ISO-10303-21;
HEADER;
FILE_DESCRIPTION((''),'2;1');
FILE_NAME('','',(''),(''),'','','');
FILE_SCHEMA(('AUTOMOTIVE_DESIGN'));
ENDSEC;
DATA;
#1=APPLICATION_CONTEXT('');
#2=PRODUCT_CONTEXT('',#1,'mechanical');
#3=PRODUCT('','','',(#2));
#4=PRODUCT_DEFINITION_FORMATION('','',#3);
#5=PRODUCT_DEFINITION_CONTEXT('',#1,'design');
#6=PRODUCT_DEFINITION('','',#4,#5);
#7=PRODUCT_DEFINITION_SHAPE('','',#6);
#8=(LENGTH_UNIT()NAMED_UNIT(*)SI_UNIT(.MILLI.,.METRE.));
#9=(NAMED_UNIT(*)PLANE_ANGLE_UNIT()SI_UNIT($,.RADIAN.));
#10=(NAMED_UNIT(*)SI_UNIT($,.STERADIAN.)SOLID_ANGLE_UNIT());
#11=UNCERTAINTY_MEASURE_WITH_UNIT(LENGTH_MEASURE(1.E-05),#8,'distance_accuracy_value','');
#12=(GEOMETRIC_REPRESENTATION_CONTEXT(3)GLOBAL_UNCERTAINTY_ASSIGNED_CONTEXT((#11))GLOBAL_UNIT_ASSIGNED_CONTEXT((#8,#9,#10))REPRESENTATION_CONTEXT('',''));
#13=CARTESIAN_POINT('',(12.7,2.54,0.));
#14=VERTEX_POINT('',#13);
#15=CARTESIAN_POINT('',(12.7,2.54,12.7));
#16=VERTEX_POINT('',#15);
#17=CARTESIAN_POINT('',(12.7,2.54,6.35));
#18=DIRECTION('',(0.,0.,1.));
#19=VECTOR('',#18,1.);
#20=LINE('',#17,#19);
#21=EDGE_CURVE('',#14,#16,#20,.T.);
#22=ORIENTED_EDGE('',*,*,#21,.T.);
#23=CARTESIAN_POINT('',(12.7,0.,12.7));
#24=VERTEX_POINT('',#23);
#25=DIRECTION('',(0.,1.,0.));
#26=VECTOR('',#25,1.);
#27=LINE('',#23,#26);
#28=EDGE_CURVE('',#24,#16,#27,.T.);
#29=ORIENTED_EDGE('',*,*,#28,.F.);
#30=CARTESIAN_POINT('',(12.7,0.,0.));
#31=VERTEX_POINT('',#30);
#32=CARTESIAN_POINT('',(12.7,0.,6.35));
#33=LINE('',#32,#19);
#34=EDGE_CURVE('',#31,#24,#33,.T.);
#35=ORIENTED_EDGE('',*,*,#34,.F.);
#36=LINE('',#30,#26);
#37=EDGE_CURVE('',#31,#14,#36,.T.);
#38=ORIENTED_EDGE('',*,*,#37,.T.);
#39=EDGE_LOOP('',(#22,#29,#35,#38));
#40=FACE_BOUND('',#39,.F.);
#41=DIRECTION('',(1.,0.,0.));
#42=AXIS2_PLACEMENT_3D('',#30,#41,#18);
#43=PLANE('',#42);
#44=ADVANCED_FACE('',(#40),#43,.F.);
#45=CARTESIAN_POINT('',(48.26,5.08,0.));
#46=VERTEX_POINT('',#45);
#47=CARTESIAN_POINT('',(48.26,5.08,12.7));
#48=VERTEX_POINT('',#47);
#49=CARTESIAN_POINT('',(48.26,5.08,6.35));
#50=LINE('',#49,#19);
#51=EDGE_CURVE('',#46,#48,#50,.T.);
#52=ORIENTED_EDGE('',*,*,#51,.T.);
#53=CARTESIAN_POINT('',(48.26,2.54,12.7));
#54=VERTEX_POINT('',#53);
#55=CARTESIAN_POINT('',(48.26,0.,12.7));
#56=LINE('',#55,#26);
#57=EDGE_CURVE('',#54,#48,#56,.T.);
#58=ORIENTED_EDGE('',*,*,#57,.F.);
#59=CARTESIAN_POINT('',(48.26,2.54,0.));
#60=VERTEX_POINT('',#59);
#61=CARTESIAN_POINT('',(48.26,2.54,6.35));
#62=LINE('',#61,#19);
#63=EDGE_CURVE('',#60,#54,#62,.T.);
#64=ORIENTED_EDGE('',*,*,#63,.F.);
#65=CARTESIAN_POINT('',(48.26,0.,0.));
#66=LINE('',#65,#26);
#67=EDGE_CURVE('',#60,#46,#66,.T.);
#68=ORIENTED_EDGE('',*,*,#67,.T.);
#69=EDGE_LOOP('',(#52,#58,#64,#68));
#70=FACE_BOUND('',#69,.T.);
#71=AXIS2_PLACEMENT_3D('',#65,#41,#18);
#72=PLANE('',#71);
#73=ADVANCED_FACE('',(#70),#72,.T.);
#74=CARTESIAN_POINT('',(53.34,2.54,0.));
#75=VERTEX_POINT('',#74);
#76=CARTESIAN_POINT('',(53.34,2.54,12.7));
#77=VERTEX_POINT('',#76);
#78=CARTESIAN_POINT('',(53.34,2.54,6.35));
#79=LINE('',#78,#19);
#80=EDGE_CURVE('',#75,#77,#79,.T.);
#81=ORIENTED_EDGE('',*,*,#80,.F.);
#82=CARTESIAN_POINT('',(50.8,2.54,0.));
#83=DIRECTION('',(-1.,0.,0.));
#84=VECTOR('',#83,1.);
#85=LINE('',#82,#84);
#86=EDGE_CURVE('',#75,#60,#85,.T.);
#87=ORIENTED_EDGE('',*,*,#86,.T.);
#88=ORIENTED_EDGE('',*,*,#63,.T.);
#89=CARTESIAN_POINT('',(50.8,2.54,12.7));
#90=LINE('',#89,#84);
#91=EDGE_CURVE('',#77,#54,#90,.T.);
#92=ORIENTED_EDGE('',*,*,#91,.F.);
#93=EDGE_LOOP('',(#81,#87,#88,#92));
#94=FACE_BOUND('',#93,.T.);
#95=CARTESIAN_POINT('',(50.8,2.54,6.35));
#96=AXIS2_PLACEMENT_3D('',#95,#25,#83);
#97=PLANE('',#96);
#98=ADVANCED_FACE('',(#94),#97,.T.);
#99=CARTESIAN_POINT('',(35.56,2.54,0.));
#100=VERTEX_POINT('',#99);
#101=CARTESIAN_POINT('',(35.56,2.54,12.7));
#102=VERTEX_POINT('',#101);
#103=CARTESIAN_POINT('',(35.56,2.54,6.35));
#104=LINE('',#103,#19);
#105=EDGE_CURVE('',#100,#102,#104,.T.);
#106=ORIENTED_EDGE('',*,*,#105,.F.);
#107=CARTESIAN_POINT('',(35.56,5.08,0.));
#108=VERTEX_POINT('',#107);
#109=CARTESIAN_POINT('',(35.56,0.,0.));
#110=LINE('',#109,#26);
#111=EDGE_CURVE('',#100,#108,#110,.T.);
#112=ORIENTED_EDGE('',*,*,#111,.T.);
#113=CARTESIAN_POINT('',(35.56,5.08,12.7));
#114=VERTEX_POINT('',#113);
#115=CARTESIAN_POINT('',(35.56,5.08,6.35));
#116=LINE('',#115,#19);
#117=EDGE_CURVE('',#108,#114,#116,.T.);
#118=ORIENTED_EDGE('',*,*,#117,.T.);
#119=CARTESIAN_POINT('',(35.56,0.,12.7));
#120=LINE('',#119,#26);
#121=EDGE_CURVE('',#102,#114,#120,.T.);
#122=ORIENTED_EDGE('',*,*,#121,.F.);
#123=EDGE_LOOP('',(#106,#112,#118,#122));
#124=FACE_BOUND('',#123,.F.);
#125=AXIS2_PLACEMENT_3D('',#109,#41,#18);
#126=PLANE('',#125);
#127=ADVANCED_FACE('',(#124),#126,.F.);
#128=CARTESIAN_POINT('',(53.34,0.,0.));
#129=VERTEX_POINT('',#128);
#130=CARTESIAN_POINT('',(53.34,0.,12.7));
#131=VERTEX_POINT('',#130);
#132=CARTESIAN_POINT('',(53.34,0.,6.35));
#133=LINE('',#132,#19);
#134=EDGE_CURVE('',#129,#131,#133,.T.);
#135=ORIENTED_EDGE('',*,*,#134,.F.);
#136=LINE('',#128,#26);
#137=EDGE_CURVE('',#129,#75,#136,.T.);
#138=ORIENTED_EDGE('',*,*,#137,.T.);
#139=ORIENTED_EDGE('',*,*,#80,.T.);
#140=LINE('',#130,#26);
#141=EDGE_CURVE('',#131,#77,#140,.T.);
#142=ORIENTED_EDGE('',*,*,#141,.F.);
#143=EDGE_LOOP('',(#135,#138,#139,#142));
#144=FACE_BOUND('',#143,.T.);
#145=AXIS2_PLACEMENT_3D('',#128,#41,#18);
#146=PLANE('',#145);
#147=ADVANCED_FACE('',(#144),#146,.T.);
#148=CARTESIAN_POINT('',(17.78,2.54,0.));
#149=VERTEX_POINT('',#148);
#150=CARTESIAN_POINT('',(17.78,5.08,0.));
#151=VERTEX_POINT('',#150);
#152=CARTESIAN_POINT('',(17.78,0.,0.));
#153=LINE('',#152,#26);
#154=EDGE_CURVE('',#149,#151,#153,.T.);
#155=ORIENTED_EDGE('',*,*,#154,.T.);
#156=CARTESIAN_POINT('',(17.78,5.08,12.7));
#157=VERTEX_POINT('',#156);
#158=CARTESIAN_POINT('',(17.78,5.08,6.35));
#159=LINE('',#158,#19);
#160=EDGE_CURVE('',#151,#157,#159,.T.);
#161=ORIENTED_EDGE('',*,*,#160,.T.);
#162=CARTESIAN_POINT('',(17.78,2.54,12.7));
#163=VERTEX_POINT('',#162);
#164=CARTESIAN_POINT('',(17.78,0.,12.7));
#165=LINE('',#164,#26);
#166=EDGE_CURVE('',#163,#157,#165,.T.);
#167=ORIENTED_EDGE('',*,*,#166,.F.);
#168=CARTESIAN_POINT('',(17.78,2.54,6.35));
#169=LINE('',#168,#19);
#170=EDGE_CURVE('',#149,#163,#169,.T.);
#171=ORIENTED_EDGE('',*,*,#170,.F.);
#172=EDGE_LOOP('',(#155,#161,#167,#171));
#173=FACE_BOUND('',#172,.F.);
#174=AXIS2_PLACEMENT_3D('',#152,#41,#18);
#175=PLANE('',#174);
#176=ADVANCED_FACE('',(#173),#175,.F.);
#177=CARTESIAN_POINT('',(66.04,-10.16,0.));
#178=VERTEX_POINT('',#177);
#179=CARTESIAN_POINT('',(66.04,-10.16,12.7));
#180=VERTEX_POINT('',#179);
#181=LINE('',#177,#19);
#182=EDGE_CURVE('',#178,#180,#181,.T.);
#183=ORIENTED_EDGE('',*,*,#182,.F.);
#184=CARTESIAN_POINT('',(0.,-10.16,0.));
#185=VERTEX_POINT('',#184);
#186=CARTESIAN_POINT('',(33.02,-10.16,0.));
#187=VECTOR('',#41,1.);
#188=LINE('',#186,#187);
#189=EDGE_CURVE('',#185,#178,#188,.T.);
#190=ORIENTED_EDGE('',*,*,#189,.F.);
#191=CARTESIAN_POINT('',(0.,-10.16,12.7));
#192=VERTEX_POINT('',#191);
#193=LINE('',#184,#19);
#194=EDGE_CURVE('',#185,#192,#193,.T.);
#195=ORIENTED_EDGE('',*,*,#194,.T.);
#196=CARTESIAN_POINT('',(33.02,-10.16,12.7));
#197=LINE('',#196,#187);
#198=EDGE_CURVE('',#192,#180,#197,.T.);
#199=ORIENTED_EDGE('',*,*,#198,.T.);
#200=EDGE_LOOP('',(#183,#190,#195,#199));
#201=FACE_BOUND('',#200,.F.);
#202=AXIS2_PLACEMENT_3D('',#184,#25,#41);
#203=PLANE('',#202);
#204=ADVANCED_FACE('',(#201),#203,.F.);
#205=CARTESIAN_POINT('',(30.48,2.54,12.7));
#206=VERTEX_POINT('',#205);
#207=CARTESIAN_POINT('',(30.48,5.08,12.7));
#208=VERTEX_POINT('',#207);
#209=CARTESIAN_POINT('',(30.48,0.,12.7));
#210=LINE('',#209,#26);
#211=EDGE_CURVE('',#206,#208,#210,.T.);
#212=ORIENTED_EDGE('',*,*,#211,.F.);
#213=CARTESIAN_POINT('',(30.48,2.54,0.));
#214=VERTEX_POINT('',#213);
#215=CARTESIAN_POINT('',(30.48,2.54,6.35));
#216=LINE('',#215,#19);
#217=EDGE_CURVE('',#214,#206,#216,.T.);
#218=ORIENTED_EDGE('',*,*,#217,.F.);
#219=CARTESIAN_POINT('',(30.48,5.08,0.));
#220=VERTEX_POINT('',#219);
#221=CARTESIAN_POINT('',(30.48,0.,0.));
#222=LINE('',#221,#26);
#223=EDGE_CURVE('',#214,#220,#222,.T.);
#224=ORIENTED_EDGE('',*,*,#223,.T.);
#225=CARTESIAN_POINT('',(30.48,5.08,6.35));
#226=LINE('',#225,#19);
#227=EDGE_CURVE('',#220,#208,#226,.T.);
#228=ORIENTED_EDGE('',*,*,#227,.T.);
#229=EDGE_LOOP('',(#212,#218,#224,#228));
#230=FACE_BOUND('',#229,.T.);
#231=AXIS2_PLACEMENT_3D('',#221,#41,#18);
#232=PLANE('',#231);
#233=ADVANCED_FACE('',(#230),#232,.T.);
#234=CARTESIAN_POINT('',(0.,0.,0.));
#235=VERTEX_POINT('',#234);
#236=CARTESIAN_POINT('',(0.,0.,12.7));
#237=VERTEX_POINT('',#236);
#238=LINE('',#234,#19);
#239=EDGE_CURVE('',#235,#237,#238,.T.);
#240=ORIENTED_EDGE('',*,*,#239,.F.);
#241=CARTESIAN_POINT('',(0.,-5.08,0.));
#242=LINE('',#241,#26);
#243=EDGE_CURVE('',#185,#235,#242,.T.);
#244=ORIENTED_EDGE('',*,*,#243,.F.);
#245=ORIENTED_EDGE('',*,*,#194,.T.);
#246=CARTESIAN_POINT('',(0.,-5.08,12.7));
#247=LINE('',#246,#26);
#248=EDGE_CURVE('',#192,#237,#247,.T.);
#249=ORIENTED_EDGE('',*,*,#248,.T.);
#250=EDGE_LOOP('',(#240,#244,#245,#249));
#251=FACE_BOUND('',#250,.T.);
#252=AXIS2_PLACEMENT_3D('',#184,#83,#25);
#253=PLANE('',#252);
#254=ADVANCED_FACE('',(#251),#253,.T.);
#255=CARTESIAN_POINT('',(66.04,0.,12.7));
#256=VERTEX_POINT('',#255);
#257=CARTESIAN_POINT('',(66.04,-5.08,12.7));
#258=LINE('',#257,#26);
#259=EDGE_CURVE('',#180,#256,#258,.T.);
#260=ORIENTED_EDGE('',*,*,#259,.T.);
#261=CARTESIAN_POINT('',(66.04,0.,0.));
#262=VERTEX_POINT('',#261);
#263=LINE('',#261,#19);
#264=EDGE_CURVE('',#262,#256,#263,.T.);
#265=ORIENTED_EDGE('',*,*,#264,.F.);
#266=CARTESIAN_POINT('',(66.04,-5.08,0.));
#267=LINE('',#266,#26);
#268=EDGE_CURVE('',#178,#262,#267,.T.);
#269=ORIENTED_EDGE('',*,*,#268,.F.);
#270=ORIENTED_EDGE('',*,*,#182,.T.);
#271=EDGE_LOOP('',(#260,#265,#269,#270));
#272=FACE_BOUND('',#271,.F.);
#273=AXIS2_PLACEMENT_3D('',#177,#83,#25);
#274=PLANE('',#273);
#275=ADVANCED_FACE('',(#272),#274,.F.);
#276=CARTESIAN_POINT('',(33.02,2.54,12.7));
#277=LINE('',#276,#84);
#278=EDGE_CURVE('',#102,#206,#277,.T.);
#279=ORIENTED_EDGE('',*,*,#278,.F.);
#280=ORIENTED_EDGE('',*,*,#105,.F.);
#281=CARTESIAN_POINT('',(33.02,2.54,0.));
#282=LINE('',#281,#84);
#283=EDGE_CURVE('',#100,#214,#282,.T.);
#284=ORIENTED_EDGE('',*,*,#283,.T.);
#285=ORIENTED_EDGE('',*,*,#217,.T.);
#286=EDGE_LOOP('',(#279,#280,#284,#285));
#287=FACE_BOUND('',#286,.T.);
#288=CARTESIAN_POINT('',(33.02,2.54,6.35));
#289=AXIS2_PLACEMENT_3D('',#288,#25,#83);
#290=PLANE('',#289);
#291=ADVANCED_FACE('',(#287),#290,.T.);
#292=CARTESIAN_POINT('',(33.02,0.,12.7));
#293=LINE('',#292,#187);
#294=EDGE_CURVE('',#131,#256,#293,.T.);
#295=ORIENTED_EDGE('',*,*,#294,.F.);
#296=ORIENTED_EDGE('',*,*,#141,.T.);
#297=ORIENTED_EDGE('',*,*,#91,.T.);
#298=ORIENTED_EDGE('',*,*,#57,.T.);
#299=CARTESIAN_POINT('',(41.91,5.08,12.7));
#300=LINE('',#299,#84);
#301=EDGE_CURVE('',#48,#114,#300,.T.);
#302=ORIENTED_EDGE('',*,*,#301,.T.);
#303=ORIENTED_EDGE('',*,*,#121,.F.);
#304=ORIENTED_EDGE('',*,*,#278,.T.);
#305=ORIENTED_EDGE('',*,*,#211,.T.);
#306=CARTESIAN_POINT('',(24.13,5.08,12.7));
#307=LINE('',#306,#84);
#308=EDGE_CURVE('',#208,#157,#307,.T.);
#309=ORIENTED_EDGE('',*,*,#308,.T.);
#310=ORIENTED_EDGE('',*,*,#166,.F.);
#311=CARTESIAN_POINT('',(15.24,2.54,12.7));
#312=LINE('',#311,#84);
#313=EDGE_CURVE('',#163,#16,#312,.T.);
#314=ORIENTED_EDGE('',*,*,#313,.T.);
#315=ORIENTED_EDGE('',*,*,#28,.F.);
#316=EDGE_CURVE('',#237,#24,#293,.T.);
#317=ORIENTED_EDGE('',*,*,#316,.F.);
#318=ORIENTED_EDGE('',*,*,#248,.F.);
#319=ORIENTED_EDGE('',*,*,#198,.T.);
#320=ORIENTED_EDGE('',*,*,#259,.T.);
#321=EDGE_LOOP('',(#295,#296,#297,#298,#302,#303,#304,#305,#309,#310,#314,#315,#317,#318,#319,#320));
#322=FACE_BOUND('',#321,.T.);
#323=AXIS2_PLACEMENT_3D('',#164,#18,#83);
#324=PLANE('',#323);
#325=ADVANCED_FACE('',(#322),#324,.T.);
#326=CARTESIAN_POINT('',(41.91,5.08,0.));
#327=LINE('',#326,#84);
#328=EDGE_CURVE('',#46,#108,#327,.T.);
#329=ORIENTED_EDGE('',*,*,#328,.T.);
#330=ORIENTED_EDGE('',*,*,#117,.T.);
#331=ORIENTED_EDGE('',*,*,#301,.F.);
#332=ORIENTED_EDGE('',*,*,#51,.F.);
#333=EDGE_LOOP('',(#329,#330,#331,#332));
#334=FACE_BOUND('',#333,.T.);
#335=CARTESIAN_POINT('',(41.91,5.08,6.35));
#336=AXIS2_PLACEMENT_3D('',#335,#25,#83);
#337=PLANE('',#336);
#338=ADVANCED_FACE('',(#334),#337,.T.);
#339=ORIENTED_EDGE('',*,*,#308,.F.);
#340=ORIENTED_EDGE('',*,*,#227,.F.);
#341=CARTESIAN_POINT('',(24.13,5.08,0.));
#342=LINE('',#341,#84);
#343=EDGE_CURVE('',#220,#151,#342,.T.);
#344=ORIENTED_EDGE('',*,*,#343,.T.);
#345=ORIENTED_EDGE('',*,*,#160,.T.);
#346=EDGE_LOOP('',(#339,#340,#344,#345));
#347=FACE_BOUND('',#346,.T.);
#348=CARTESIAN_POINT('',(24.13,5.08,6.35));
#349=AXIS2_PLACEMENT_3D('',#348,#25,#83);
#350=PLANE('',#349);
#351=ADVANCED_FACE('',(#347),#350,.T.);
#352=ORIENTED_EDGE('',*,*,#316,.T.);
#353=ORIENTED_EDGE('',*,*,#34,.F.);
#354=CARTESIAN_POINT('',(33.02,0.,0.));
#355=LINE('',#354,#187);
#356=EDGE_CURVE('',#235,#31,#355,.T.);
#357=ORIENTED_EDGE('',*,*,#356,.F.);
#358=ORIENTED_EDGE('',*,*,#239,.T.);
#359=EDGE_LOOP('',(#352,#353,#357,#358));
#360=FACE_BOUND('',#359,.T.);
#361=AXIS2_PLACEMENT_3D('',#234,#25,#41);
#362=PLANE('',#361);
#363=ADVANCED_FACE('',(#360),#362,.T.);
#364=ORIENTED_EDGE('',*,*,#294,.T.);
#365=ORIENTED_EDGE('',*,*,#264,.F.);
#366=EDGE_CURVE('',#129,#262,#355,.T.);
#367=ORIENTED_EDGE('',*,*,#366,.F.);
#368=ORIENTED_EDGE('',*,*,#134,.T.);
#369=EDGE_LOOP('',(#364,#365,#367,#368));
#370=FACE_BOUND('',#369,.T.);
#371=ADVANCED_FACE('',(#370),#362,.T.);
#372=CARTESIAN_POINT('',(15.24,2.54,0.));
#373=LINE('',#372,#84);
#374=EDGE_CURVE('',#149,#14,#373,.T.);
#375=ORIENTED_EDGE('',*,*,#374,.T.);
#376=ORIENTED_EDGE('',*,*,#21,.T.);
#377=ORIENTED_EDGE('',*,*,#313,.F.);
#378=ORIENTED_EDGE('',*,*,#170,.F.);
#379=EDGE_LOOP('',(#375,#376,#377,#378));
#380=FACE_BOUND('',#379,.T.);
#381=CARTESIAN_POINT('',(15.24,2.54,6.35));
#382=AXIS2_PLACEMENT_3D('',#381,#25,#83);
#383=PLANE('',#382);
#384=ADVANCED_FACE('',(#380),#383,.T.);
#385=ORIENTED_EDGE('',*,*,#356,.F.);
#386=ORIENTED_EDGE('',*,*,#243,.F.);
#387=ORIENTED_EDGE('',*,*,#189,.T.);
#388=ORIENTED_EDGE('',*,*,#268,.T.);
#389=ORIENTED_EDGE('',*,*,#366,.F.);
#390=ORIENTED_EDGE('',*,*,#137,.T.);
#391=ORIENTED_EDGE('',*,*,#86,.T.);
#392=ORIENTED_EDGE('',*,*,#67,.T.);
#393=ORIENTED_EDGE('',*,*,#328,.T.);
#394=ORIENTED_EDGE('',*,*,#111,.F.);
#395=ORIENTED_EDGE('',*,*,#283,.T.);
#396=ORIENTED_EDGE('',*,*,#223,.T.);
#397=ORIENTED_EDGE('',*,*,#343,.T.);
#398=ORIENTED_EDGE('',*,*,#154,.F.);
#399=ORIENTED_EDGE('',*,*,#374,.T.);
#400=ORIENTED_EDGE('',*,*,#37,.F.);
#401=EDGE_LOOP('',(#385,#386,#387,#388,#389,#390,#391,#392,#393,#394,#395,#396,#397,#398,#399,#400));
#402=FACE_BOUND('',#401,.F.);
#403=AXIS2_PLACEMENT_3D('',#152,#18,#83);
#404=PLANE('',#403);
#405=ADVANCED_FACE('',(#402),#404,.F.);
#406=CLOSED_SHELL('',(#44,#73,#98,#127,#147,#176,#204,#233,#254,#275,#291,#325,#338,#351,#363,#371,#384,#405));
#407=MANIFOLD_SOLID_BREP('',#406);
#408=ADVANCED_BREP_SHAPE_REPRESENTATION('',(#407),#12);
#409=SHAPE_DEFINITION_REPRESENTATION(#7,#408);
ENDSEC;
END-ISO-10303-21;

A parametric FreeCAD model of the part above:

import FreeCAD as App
import Part
import Sketcher
Q = App.Units.Quantity


def add_polygon(sketch, points):
    """Adds a closed chain of lines whose ends are joined by coincident constraints."""
    first, n = sketch.GeometryCount, len(points)
    for a, b in zip(points, points[1:] + points[:1]):
        sketch.addGeometry(Part.LineSegment(App.Vector(*a, 0), App.Vector(*b, 0)), False)
    for i in range(n):
        sketch.addConstraint(Sketcher.Constraint("Coincident", first + i, 2, first + (i + 1) % n, 1))

doc = App.newDocument("Part")
body = doc.addObject("PartDesign::Body", "Body")

sketch1 = body.newObject("Sketcher::SketchObject", "Sketch")
sketch1.AttachmentSupport = (doc.getObject("XY_Plane"), [""])
sketch1.MapMode = "FlatFace"
add_polygon(sketch1, [(0, 0), (0, -10), (66, -10), (66, 0)])
sketch1.addConstraint([
    Sketcher.Constraint("Vertical", 0),
    Sketcher.Constraint("Horizontal", 1),
    Sketcher.Constraint("Vertical", 2),
    Sketcher.Constraint("Horizontal", 3),
    Sketcher.Constraint("Coincident", 3, 2, -1, 1),
    Sketcher.Constraint("DistanceX", 1, 1, 1, 2, Q("2.6 in")),
    Sketcher.Constraint("DistanceY", 0, 2, 0, 1, Q("0.4 in")),
])
pad1 = body.newObject("PartDesign::Pad", "Pad")
pad1.Profile = sketch1
pad1.Length = Q("0.5 in")

sketch2 = body.newObject("Sketcher::SketchObject", "Sketch001")
sketch2.AttachmentSupport = (doc.getObject("XZ_Plane"), [""])
sketch2.MapMode = "FlatFace"
add_polygon(sketch2, [(30, 13), (30, 0), (18, 0), (18, 13)])
add_polygon(sketch2, [(48, 13), (48, 0), (36, 0), (36, 13)])
sketch2.addConstraint([
    Sketcher.Constraint("Vertical", 0),
    Sketcher.Constraint("Horizontal", 1),
    Sketcher.Constraint("Vertical", 2),
    Sketcher.Constraint("Horizontal", 3),
    Sketcher.Constraint("Vertical", 4),
    Sketcher.Constraint("Horizontal", 5),
    Sketcher.Constraint("Vertical", 6),
    Sketcher.Constraint("Horizontal", 7),
    Sketcher.Constraint("PointOnObject", 0, 2, -1),
    Sketcher.Constraint("PointOnObject", 4, 2, -1),
    Sketcher.Constraint("Horizontal", 3, 2, 6, 2),
    Sketcher.Constraint("Equal", 3, 5),
    Sketcher.Constraint("Equal", 7, 0),
    Sketcher.Constraint("DistanceX", 1, 2, 1, 1, Q("0.5 in")),
    Sketcher.Constraint("DistanceX", -1, 1, 0, 2, Q("1.2 in")),
    Sketcher.Constraint("DistanceX", -1, 1, 4, 2, Q("1.9 in")),
])
pad2 = body.newObject("PartDesign::Pad", "Pad001")
pad2.Profile = sketch2
pad2.Length = Q("0.2 in")
pad2.Reversed = True

sketch3 = body.newObject("Sketcher::SketchObject", "Sketch002")
sketch3.AttachmentSupport = (doc.getObject("XZ_Plane"), [""])
sketch3.MapMode = "FlatFace"
add_polygon(sketch3, [(18, 13), (18, 0), (13, 0), (13, 13)])
add_polygon(sketch3, [(36, 13), (36, 0), (30, 0), (30, 13)])
add_polygon(sketch3, [(53, 13), (53, 0), (48, 0), (48, 13)])
sketch3.addConstraint([
    Sketcher.Constraint("Vertical", 0),
    Sketcher.Constraint("Horizontal", 1),
    Sketcher.Constraint("Vertical", 2),
    Sketcher.Constraint("Horizontal", 3),
    Sketcher.Constraint("Vertical", 4),
    Sketcher.Constraint("Horizontal", 5),
    Sketcher.Constraint("Vertical", 6),
    Sketcher.Constraint("Horizontal", 7),
    Sketcher.Constraint("Vertical", 8),
    Sketcher.Constraint("Horizontal", 9),
    Sketcher.Constraint("Vertical", 10),
    Sketcher.Constraint("Horizontal", 11),
    Sketcher.Constraint("PointOnObject", 0, 2, -1),
    Sketcher.Constraint("PointOnObject", 4, 2, -1),
    Sketcher.Constraint("PointOnObject", 8, 2, -1),
    Sketcher.Constraint("Horizontal", 3, 2, 6, 2),
    Sketcher.Constraint("Horizontal", 7, 2, 10, 2),
    Sketcher.Constraint("Equal", 3, 5),
    Sketcher.Constraint("Equal", 7, 9),
    Sketcher.Constraint("DistanceX", 1, 2, 1, 1, Q("0.2 in")),
    Sketcher.Constraint("DistanceY", 0, 2, 0, 1, Q("0.5 in")),
    Sketcher.Constraint("DistanceX", -1, 1, 0, 2, Q("0.7 in")),
    Sketcher.Constraint("DistanceX", -1, 1, 4, 2, Q("1.4 in")),
    Sketcher.Constraint("DistanceX", -1, 1, 8, 2, Q("2.1 in")),
])
pad3 = body.newObject("PartDesign::Pad", "Pad002")
pad3.Profile = sketch3
pad3.Length = Q("0.1 in")
pad3.Reversed = True

doc.recompute()
